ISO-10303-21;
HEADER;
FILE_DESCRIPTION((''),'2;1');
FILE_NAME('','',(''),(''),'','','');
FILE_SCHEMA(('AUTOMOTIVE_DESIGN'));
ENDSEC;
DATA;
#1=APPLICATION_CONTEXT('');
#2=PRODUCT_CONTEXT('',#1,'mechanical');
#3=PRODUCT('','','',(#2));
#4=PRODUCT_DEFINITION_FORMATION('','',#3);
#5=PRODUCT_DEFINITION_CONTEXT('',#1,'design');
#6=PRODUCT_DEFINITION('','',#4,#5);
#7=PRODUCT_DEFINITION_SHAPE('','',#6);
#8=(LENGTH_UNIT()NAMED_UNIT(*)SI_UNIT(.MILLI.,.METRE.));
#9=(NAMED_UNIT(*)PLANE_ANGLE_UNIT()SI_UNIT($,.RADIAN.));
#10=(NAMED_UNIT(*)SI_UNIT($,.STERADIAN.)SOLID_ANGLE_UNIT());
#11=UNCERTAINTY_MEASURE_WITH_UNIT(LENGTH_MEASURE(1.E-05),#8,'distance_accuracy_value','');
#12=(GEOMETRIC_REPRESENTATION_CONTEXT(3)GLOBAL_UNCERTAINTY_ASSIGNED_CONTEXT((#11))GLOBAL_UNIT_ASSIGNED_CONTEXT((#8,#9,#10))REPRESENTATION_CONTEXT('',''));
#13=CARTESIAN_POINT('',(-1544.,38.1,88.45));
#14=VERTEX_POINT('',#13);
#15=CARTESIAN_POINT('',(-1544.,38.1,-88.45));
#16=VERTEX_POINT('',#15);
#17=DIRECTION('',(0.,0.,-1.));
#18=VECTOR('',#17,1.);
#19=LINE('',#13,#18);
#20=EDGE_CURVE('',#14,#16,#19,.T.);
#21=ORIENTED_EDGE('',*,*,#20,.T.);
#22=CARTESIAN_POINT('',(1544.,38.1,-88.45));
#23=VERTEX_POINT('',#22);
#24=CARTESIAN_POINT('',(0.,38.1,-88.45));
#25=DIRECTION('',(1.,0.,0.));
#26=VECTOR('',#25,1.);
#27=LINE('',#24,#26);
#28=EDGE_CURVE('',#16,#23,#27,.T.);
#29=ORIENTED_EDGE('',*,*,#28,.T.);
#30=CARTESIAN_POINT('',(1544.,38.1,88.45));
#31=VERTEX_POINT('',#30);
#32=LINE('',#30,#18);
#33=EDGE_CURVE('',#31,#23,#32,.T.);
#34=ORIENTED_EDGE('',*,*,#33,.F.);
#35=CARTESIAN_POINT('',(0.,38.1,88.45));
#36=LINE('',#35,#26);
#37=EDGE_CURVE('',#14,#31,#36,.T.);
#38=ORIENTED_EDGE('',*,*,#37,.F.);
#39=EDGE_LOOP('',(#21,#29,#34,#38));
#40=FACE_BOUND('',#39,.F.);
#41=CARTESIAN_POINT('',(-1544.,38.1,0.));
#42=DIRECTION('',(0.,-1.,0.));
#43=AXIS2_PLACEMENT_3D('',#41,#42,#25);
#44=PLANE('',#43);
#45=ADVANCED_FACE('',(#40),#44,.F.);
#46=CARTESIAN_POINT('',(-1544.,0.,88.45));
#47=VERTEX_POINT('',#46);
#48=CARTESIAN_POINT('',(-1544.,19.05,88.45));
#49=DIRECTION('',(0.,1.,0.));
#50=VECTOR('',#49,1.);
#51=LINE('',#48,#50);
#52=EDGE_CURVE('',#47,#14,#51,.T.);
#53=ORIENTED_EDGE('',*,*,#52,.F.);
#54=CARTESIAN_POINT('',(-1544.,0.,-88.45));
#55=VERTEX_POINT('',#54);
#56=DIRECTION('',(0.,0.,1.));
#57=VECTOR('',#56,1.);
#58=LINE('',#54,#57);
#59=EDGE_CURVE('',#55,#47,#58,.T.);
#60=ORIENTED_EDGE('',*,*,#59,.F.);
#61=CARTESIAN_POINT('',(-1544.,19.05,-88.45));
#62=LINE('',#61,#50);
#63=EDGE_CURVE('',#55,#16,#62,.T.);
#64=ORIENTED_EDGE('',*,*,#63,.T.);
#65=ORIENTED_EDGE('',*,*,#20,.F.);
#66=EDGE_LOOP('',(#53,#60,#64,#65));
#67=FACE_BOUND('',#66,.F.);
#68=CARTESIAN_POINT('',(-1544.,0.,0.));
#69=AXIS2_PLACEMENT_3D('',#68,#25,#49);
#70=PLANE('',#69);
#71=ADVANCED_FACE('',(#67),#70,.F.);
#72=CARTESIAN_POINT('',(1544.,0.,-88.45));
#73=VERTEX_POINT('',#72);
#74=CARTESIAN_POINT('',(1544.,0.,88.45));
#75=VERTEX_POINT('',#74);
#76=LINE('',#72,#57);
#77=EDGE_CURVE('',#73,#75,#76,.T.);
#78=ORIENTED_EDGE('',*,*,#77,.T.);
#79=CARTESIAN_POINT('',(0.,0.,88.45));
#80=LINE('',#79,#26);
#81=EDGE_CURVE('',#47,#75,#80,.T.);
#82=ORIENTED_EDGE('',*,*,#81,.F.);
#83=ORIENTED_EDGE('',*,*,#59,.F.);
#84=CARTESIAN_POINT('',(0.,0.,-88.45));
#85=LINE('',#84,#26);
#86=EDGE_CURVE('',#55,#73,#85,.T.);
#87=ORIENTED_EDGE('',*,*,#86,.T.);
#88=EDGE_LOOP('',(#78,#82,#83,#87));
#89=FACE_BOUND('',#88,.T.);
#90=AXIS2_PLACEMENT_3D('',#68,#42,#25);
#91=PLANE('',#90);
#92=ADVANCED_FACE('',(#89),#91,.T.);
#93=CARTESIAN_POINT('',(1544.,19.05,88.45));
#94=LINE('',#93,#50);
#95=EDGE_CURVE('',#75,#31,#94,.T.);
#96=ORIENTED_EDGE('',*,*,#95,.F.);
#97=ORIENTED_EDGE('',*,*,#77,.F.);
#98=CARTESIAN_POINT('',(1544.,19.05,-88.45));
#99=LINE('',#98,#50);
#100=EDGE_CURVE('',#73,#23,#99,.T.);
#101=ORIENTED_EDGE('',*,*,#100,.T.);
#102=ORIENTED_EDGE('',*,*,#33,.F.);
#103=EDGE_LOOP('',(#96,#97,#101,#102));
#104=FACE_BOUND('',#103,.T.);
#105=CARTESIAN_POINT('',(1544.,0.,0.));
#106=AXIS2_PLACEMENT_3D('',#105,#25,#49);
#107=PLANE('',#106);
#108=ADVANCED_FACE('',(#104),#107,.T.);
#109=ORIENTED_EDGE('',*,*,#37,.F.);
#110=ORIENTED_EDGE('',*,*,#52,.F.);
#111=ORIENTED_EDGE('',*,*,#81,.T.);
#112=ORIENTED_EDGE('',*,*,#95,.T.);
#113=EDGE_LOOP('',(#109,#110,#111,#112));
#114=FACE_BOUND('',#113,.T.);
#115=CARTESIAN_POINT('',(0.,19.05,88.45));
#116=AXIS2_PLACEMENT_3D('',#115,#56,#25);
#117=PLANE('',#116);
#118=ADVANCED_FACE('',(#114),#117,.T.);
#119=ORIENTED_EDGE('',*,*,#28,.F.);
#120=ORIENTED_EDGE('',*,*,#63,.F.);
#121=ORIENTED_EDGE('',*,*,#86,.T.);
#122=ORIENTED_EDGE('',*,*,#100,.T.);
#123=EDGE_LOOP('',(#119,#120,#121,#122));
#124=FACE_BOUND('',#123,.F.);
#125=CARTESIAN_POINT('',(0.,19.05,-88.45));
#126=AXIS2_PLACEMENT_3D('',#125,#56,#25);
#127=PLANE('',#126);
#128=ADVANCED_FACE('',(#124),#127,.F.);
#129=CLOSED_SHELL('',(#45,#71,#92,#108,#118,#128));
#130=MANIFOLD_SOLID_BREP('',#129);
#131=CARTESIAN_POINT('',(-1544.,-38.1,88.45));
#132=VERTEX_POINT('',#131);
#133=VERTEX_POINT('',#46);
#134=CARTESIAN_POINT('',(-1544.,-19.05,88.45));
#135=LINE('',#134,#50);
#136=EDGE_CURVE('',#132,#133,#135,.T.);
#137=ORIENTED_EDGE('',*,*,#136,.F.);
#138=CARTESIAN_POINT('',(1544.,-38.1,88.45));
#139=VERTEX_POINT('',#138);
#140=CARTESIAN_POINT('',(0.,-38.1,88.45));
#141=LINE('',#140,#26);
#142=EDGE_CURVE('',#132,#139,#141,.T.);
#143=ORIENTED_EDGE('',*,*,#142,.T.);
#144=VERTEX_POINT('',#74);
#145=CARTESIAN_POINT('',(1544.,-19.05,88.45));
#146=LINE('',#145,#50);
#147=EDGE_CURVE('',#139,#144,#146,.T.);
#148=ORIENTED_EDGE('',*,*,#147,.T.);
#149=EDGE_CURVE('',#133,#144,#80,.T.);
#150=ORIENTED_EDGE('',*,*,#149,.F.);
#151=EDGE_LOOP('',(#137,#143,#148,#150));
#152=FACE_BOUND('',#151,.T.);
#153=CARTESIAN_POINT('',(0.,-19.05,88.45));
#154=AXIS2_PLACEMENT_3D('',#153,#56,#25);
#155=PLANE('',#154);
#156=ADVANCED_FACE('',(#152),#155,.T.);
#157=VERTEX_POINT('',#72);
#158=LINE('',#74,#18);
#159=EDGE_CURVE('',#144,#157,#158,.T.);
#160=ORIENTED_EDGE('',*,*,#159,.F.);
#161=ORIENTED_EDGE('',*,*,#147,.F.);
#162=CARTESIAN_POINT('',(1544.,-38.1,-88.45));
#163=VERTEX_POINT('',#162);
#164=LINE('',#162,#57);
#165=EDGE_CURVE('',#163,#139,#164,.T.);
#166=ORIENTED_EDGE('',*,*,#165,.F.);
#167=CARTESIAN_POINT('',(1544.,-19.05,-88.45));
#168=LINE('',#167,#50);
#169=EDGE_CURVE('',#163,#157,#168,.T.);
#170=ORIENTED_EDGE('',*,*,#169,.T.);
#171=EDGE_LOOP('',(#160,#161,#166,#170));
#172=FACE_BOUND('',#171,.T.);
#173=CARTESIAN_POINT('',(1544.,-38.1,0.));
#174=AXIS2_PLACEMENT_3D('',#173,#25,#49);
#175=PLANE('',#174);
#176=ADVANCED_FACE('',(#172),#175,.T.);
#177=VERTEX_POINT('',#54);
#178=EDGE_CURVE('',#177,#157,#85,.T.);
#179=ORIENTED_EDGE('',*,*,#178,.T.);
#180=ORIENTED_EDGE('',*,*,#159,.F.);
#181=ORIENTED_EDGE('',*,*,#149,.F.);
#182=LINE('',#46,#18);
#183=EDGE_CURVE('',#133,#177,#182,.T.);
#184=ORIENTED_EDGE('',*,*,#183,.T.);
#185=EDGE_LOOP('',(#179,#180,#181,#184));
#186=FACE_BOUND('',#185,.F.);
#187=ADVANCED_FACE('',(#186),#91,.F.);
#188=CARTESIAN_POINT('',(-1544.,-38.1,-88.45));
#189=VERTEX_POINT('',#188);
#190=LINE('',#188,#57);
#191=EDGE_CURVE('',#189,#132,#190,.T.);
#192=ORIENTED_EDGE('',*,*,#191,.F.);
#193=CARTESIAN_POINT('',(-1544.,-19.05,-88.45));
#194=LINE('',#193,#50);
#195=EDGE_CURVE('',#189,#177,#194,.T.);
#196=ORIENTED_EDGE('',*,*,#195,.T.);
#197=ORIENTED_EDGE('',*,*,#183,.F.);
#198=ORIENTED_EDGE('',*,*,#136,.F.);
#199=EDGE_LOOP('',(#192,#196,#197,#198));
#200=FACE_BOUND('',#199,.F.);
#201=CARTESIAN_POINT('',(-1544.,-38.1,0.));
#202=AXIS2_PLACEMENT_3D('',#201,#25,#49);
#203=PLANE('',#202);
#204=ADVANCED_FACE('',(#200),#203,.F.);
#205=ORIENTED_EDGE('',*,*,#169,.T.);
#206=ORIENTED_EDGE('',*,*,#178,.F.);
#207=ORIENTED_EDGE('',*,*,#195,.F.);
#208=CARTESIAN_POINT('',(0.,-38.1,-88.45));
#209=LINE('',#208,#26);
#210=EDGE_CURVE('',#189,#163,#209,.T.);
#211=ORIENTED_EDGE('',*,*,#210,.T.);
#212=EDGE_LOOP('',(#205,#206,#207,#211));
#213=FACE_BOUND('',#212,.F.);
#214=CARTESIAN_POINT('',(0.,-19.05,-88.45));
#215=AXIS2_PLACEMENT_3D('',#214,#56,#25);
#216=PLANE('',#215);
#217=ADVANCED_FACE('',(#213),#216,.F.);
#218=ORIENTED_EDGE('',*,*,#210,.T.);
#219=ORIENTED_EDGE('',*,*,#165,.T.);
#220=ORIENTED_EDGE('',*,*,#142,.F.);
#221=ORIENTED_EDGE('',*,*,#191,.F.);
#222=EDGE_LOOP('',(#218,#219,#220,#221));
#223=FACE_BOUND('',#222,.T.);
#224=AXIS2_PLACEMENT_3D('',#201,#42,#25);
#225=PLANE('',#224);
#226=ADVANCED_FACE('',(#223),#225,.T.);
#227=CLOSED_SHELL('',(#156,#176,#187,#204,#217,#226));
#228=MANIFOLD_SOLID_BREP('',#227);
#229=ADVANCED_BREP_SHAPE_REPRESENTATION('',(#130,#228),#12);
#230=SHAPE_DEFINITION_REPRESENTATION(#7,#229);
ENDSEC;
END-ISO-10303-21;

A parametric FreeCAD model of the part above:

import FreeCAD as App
import Part
import Sketcher
Q = App.Units.Quantity

doc = App.newDocument("Part")
body = doc.addObject("PartDesign::Body", "Body")

# Sketch on XY plane
sketch1 = body.newObject("Sketcher::SketchObject", "Sketch")
sketch1.AttachmentSupport = (doc.getObject("XY_Plane"), [""])
sketch1.MapMode = "FlatFace"
sketch1.addGeometry(Part.LineSegment(App.Vector(-1544, 38.1, 0), App.Vector(-1544, 0, 0)), False)
sketch1.addGeometry(Part.LineSegment(App.Vector(-1544, 0, 0), App.Vector(1544, 0, 0)), False)
sketch1.addGeometry(Part.LineSegment(App.Vector(1544, 0, 0), App.Vector(1544, 38.1, 0)), False)
sketch1.addGeometry(Part.LineSegment(App.Vector(1544, 38.1, 0), App.Vector(-1544, 38.1, 0)), False)
sketch1.addConstraint(Sketcher.Constraint("Coincident", 0, 2, 1, 1))
sketch1.addConstraint(Sketcher.Constraint("Coincident", 1, 2, 2, 1))
sketch1.addConstraint(Sketcher.Constraint("Coincident", 2, 2, 3, 1))
sketch1.addConstraint(Sketcher.Constraint("Coincident", 3, 2, 0, 1))
sketch1.addConstraint(Sketcher.Constraint("Vertical", 0))
sketch1.addConstraint(Sketcher.Constraint("Horizontal", 1))
sketch1.addConstraint(Sketcher.Constraint("Vertical", 2))
sketch1.addConstraint(Sketcher.Constraint("Horizontal", 3))
sketch1.addConstraint(Sketcher.Constraint("Symmetric", 0, 2, 1, 2, -1, 1))
sketch1.addConstraint(Sketcher.Constraint("DistanceX", 1, 1, 1, 2, Q("3088 mm")))
sketch1.addConstraint(Sketcher.Constraint("DistanceY", 0, 2, 0, 1, Q("38.1 mm")))
pad1 = body.newObject("PartDesign::Pad", "Pad")
pad1.Profile = sketch1
pad1.Length = 176.9
pad1.Midplane = True
body2 = doc.addObject("PartDesign::Body", "Body001")

# Sketch on XY plane
sketch2 = body2.newObject("Sketcher::SketchObject", "Sketch001")
sketch2.AttachmentSupport = (doc.getObject("XY_Plane001"), [""])
sketch2.MapMode = "FlatFace"
sketch2.addGeometry(Part.LineSegment(App.Vector(-1544, 0, 0), App.Vector(-1544, -38.1, 0)), False)
sketch2.addGeometry(Part.LineSegment(App.Vector(-1544, -38.1, 0), App.Vector(1544, -38.1, 0)), False)
sketch2.addGeometry(Part.LineSegment(App.Vector(1544, -38.1, 0), App.Vector(1544, 0, 0)), False)
sketch2.addGeometry(Part.LineSegment(App.Vector(1544, 0, 0), App.Vector(-1544, 0, 0)), False)
sketch2.addConstraint(Sketcher.Constraint("Coincident", 0, 2, 1, 1))
sketch2.addConstraint(Sketcher.Constraint("Coincident", 1, 2, 2, 1))
sketch2.addConstraint(Sketcher.Constraint("Coincident", 2, 2, 3, 1))
sketch2.addConstraint(Sketcher.Constraint("Coincident", 3, 2, 0, 1))
sketch2.addConstraint(Sketcher.Constraint("Vertical", 0))
sketch2.addConstraint(Sketcher.Constraint("Horizontal", 1))
sketch2.addConstraint(Sketcher.Constraint("Vertical", 2))
sketch2.addConstraint(Sketcher.Constraint("Horizontal", 3))
sketch2.addConstraint(Sketcher.Constraint("Symmetric", 2, 2, 3, 2, -1, 1))
sketch2.addConstraint(Sketcher.Constraint("DistanceX", 1, 1, 1, 2, Q("3088 mm")))
sketch2.addConstraint(Sketcher.Constraint("DistanceY", 0, 2, 0, 1, Q("38.1 mm")))
pad2 = body2.newObject("PartDesign::Pad", "Pad001")
pad2.Profile = sketch2
pad2.Length = 176.9
pad2.Midplane = True

doc.recompute()
